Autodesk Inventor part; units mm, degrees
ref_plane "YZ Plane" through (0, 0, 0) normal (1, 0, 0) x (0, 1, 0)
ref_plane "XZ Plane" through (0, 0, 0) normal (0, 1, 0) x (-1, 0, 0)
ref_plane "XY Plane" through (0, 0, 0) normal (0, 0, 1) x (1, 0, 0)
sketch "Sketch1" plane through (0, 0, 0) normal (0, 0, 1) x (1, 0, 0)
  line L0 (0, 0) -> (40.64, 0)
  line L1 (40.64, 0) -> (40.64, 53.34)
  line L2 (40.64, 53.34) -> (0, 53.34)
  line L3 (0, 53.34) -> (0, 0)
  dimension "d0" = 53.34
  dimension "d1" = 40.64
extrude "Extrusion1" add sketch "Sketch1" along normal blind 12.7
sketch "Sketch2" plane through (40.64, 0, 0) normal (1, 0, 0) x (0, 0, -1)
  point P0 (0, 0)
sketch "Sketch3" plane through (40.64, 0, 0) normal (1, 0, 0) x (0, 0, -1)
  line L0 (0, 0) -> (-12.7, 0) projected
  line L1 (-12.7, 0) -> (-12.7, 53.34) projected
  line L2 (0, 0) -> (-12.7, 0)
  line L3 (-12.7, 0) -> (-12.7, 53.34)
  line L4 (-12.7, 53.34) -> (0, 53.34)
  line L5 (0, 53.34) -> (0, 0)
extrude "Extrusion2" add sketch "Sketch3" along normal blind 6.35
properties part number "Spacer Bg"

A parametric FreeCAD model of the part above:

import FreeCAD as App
import Part
import Sketcher
Q = App.Units.Quantity


def add_polygon(sketch, points):
    """Adds a closed chain of lines whose ends are joined by coincident constraints."""
    first, n = sketch.GeometryCount, len(points)
    for a, b in zip(points, points[1:] + points[:1]):
        sketch.addGeometry(Part.LineSegment(App.Vector(*a, 0), App.Vector(*b, 0)), False)
    for i in range(n):
        sketch.addConstraint(Sketcher.Constraint("Coincident", first + i, 2, first + (i + 1) % n, 1))

doc = App.newDocument("Part")
body = doc.addObject("PartDesign::Body", "Body")

sketch1 = body.newObject("Sketcher::SketchObject", "Sketch")
sketch1.AttachmentSupport = (doc.getObject("XY_Plane"), [""])
sketch1.MapMode = "FlatFace"
add_polygon(sketch1, [(0, 53.34), (0, 0), (40.64, 0), (40.64, 53.34)])
sketch1.addConstraint(Sketcher.Constraint("Vertical", 0))
sketch1.addConstraint(Sketcher.Constraint("Horizontal", 1))
sketch1.addConstraint(Sketcher.Constraint("Vertical", 2))
sketch1.addConstraint(Sketcher.Constraint("Horizontal", 3))
sketch1.addConstraint(Sketcher.Constraint("Coincident", 0, 2, -1, 1))
sketch1.addConstraint(Sketcher.Constraint("DistanceX", 1, 1, 1, 2, Q("1.6 in")))
sketch1.addConstraint(Sketcher.Constraint("DistanceY", 0, 2, 0, 1, Q("2.1 in")))
pad1 = body.newObject("PartDesign::Pad", "Pad")
pad1.Profile = sketch1
pad1.Length = Q("0.5 in")

sketch2 = body.newObject("Sketcher::SketchObject", "Sketch001")
sketch2.AttachmentSupport = (doc.getObject("YZ_Plane"), [""])
sketch2.MapMode = "FlatFace"
sketch2.AttachmentOffset = App.Placement(App.Vector(0, 0, 1.6 * 25.4), App.Rotation())
add_polygon(sketch2, [(0, 12.7), (0, 0), (53.34, 0), (53.34, 12.7)])
sketch2.addConstraint(Sketcher.Constraint("Vertical", 0))
sketch2.addConstraint(Sketcher.Constraint("Horizontal", 1))
sketch2.addConstraint(Sketcher.Constraint("Vertical", 2))
sketch2.addConstraint(Sketcher.Constraint("Horizontal", 3))
sketch2.addConstraint(Sketcher.Constraint("Coincident", 0, 2, -1, 1))
sketch2.addConstraint(Sketcher.Constraint("DistanceX", 1, 1, 1, 2, Q("2.1 in")))
sketch2.addConstraint(Sketcher.Constraint("DistanceY", 0, 2, 0, 1, Q("0.5 in")))
pad2 = body.newObject("PartDesign::Pad", "Pad001")
pad2.Profile = sketch2
pad2.Length = Q("0.25 in")

doc.recompute()
